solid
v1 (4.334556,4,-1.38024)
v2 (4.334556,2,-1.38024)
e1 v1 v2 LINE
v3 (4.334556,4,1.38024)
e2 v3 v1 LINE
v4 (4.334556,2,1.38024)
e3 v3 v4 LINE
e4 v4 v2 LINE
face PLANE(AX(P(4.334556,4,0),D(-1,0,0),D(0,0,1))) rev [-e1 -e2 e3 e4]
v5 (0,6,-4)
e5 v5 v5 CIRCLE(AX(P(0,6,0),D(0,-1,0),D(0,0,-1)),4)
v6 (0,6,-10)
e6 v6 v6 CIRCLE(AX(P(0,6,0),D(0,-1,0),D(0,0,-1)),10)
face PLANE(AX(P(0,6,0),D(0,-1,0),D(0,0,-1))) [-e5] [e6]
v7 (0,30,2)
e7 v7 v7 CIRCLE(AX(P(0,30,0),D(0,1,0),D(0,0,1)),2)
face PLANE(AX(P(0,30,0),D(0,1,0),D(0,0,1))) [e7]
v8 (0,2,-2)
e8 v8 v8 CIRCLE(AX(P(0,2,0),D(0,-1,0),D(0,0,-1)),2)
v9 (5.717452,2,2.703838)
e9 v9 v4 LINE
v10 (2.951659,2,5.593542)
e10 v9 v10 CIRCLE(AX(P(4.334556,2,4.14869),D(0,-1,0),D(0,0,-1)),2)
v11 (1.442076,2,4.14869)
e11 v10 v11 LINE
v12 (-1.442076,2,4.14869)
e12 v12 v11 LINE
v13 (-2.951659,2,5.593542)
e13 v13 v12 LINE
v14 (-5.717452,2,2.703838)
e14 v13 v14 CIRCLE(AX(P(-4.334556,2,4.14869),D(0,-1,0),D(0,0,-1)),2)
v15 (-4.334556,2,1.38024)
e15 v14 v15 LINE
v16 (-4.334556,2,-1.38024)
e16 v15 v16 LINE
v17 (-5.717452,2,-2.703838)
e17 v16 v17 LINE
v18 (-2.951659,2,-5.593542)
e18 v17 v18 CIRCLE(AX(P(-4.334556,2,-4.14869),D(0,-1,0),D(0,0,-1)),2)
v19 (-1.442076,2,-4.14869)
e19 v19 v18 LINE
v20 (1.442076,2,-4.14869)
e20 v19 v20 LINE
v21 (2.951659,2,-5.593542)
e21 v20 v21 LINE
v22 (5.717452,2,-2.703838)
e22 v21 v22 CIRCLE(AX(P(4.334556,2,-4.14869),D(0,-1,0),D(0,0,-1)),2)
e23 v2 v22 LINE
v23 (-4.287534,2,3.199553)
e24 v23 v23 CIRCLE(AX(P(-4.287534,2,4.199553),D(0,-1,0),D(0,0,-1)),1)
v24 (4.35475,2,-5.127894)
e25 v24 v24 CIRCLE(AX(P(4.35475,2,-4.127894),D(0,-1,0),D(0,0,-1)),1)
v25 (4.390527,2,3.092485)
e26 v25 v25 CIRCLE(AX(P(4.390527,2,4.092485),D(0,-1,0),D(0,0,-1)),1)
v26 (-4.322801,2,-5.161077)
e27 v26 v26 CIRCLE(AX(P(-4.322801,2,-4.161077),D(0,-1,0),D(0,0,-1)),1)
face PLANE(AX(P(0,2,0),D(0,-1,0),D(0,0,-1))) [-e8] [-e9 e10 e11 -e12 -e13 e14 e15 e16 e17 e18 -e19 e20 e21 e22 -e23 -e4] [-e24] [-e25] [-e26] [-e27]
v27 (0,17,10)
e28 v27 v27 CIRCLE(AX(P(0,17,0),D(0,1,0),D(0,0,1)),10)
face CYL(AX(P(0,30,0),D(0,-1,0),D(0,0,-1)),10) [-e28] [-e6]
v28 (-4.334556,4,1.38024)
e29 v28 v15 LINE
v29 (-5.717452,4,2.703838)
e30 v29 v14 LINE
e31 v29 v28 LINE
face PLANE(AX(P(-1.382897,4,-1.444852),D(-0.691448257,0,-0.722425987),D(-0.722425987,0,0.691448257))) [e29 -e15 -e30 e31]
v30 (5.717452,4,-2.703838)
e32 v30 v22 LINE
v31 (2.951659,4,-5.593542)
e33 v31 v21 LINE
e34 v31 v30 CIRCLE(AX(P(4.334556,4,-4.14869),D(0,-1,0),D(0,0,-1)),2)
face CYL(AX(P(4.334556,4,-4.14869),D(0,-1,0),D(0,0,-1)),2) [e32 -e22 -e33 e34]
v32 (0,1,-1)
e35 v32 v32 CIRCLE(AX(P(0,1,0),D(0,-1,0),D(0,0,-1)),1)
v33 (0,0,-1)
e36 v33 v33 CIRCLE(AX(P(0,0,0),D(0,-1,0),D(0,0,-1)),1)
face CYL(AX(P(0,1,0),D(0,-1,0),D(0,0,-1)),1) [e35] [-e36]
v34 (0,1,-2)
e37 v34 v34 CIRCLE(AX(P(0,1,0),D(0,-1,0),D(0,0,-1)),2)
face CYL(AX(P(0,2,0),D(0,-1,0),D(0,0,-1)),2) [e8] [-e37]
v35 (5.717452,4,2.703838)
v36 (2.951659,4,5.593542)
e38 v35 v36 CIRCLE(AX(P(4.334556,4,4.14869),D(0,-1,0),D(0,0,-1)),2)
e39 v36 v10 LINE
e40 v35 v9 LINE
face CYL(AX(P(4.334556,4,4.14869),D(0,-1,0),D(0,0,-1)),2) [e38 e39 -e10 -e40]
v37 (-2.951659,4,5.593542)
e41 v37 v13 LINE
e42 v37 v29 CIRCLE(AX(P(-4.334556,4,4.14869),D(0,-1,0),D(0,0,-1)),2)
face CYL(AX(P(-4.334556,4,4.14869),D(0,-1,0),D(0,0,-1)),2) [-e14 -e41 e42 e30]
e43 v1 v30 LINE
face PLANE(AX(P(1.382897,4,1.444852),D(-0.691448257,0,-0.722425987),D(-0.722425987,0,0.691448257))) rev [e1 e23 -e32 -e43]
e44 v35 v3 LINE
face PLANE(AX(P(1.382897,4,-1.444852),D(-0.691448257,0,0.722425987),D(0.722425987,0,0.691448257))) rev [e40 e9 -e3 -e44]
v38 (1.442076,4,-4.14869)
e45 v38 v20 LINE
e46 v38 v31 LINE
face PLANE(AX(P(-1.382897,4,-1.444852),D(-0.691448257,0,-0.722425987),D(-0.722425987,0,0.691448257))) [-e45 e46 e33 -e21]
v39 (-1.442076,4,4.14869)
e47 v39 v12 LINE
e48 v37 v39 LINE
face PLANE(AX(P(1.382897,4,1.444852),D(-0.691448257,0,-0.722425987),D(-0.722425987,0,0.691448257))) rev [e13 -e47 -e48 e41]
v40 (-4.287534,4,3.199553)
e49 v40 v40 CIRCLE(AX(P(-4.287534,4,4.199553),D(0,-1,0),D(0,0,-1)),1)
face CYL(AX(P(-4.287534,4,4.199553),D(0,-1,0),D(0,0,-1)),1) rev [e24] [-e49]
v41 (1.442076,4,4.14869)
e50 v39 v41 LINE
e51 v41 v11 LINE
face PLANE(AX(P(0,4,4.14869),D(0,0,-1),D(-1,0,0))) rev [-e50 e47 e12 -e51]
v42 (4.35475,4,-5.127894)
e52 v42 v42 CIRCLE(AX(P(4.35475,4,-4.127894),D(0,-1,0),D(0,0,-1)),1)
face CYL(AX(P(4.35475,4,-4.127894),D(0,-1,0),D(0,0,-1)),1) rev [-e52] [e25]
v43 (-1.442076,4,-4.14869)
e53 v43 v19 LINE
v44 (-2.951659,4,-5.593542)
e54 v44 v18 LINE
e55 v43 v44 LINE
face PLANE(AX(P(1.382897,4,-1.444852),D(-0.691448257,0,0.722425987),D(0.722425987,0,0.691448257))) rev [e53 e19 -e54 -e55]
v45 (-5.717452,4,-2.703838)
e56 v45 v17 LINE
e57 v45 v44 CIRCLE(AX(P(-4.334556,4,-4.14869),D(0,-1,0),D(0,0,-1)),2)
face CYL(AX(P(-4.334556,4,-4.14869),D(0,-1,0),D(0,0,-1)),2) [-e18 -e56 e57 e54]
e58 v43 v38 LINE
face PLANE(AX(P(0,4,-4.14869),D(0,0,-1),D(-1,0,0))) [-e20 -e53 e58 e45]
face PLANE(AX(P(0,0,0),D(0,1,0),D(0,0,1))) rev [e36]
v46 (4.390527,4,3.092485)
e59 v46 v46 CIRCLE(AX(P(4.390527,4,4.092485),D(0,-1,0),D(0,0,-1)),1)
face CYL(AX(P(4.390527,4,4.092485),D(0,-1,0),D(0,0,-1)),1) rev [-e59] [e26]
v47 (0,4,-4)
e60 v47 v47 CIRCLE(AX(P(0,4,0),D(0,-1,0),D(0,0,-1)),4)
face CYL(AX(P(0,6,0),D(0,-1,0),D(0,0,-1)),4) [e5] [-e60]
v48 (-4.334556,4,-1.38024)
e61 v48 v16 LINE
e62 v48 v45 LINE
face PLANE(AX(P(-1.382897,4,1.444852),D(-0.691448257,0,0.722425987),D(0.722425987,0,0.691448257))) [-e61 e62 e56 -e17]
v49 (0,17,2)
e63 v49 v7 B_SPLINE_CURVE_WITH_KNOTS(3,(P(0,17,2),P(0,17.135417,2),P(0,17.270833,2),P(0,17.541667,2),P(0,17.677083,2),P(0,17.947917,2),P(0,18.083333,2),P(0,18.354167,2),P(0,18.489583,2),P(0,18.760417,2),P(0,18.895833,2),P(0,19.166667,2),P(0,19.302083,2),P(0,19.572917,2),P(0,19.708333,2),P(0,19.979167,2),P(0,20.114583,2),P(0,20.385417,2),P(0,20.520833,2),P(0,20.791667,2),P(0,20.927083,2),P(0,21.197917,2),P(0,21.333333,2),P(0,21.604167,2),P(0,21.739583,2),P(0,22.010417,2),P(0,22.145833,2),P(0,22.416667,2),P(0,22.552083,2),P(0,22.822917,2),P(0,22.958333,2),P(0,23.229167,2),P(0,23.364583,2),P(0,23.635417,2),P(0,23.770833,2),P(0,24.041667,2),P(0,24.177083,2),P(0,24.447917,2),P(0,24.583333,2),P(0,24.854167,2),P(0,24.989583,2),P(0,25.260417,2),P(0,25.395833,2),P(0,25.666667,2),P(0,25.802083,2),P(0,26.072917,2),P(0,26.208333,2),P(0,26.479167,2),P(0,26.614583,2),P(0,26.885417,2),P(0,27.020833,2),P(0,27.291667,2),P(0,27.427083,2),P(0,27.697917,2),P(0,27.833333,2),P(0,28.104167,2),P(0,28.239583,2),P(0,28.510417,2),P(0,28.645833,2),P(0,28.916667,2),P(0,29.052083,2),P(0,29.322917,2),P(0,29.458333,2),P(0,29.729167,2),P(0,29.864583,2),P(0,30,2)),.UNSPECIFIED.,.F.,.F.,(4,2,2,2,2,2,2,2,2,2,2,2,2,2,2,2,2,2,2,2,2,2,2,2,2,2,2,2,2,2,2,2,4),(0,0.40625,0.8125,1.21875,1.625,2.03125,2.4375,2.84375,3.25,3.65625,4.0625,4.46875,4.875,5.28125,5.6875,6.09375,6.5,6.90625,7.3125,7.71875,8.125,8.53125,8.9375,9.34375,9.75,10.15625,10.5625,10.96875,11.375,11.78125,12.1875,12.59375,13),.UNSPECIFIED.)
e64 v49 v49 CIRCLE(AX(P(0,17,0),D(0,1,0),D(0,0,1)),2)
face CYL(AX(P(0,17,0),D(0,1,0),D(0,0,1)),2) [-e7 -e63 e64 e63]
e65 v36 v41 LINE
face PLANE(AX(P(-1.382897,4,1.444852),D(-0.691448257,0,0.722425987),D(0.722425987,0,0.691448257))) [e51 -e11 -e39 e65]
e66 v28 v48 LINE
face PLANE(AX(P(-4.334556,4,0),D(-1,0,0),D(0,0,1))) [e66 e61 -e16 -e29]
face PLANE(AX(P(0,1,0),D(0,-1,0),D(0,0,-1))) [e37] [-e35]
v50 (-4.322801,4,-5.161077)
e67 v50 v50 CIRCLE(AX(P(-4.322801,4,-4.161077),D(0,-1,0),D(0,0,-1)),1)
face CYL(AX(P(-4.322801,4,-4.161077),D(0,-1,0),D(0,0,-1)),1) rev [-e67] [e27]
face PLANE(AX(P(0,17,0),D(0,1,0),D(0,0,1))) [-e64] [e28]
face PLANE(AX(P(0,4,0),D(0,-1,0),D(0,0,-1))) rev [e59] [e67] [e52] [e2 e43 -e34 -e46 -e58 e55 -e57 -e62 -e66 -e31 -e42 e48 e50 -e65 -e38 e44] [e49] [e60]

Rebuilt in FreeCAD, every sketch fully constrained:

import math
import FreeCAD as App
import Part
import Sketcher

doc = App.newDocument("Part")
params = doc.addObject("Spreadsheet::Sheet", "Params")
for row, (alias, value) in enumerate([
    ("sketch1_diameter", "20 mm"),
    ("pad1_length", "30 mm"),
    ("sketch2_diameter", "20 mm"),
    ("sketch2_diameter2", "8 mm"),
    ("pocket1_length", "13 mm"),
    ("sketch3_diameter", "8 mm"),
    ("sketch3_diameter2", "4 mm"),
    ("pocket2_length", "13 mm"),
    ("sketch4_diameter", "20 mm"),
    ("sketch4_diameter2", "2 mm"),
    ("pocket3_length", "1 mm"),
    ("sketch5_diameter", "20 mm"),
    ("sketch5_diameter2", "4 mm"),
    ("pocket4_length", "2 mm"),
    ("sketch6_diameter", "20 mm"),
    ("sketch6_radius", "2 mm"),
    ("pocket5_length", "4 mm"),
    ("sketch7_diameter", "20 mm"),
    ("sketch7_diameter2", "8 mm"),
    ("pocket6_length", "2 mm"),
    ("sketch8_diameter", "2 mm"),
    ("pocket7_length", "2 mm"),
], start=1):
    params.set(f"A{row}", alias)
    params.set(f"B{row}", "=" + value)
    params.setAlias(f"B{row}", alias)

body = doc.addObject("PartDesign::Body", "Body")

# Sketch on XZ plane
sketch1 = body.newObject("Sketcher::SketchObject", "Sketch")
sketch1.AttachmentSupport = (doc.getObject("XZ_Plane"), [""])
sketch1.MapMode = "FlatFace"
sketch1.addGeometry(Part.Circle(App.Vector(0, 0, 0), App.Vector(0, 0, 1), 10), False)
sketch1.addConstraint([
    Sketcher.Constraint("Coincident", 0, 3, -1, 1),
    Sketcher.Constraint("Diameter", 0, 20.0),
])
sketch1.setExpression("Constraints[1]", "Params.sketch1_diameter")
pad1 = body.newObject("PartDesign::Pad", "Pad")
pad1.Profile = sketch1
pad1.setExpression("Length", "Params.pad1_length")
pad1.Reversed = True

# Sketch on XZ plane
sketch2 = body.newObject("Sketcher::SketchObject", "Sketch001")
sketch2.AttachmentSupport = (doc.getObject("XZ_Plane"), [""])
sketch2.MapMode = "FlatFace"
sketch2.AttachmentOffset = App.Placement(App.Vector(0, 0, -17), App.Rotation())
sketch2.addGeometry([
    Part.Circle(App.Vector(0, 0, 0), App.Vector(0, 0, 1), 10),
    Part.Circle(App.Vector(0, 0, 0), App.Vector(0, 0, 1), 4),
], False)
sketch2.addConstraint([
    Sketcher.Constraint("Coincident", 0, 3, -1, 1),
    Sketcher.Constraint("Coincident", 1, 3, -1, 1),
    Sketcher.Constraint("Diameter", 0, 20.0),
    Sketcher.Constraint("Diameter", 1, 8.0),
])
sketch2.setExpression("Constraints[2]", "Params.sketch2_diameter")
sketch2.setExpression("Constraints[3]", "Params.sketch2_diameter2")
pocket1 = body.newObject("PartDesign::Pocket", "Pocket")
pocket1.Profile = sketch2
pocket1.setExpression("Length", "Params.pocket1_length")

# Sketch on XZ plane
sketch3 = body.newObject("Sketcher::SketchObject", "Sketch002")
sketch3.AttachmentSupport = (doc.getObject("XZ_Plane"), [""])
sketch3.MapMode = "FlatFace"
sketch3.AttachmentOffset = App.Placement(App.Vector(0, 0, -17), App.Rotation())
sketch3.addGeometry([
    Part.Circle(App.Vector(0, 0, 0), App.Vector(0, 0, 1), 4),
    Part.Circle(App.Vector(0, 0, 0), App.Vector(0, 0, 1), 2),
], False)
sketch3.addConstraint([
    Sketcher.Constraint("Coincident", 0, 3, -1, 1),
    Sketcher.Constraint("Coincident", 1, 3, -1, 1),
    Sketcher.Constraint("Diameter", 0, 8.0),
    Sketcher.Constraint("Diameter", 1, 4.0),
])
sketch3.setExpression("Constraints[2]", "Params.sketch3_diameter")
sketch3.setExpression("Constraints[3]", "Params.sketch3_diameter2")
pocket2 = body.newObject("PartDesign::Pocket", "Pocket001")
pocket2.Profile = sketch3
pocket2.setExpression("Length", "Params.pocket2_length")

# Sketch on XZ plane
sketch4 = body.newObject("Sketcher::SketchObject", "Sketch003")
sketch4.AttachmentSupport = (doc.getObject("XZ_Plane"), [""])
sketch4.MapMode = "FlatFace"
sketch4.addGeometry([
    Part.Circle(App.Vector(0, 0, 0), App.Vector(0, 0, 1), 10),
    Part.Circle(App.Vector(0, 0, 0), App.Vector(0, 0, 1), 1),
], False)
sketch4.addConstraint([
    Sketcher.Constraint("Coincident", 0, 3, -1, 1),
    Sketcher.Constraint("Coincident", 1, 3, -1, 1),
    Sketcher.Constraint("Diameter", 0, 20.0),
    Sketcher.Constraint("Diameter", 1, 2.0),
])
sketch4.setExpression("Constraints[2]", "Params.sketch4_diameter")
sketch4.setExpression("Constraints[3]", "Params.sketch4_diameter2")
pocket3 = body.newObject("PartDesign::Pocket", "Pocket002")
pocket3.Profile = sketch4
pocket3.setExpression("Length", "Params.pocket3_length")

# Sketch on XZ plane
sketch5 = body.newObject("Sketcher::SketchObject", "Sketch004")
sketch5.AttachmentSupport = (doc.getObject("XZ_Plane"), [""])
sketch5.MapMode = "FlatFace"
sketch5.addGeometry([
    Part.Circle(App.Vector(0, 0, 0), App.Vector(0, 0, 1), 10),
    Part.Circle(App.Vector(0, 0, 0), App.Vector(0, 0, 1), 2),
], False)
sketch5.addConstraint([
    Sketcher.Constraint("Coincident", 0, 3, -1, 1),
    Sketcher.Constraint("Coincident", 1, 3, -1, 1),
    Sketcher.Constraint("Diameter", 0, 20.0),
    Sketcher.Constraint("Diameter", 1, 4.0),
])
sketch5.setExpression("Constraints[2]", "Params.sketch5_diameter")
sketch5.setExpression("Constraints[3]", "Params.sketch5_diameter2")
pocket4 = body.newObject("PartDesign::Pocket", "Pocket003")
pocket4.Profile = sketch5
pocket4.setExpression("Length", "Params.pocket4_length")

# Sketch on XZ plane
sketch6 = body.newObject("Sketcher::SketchObject", "Sketch005")
sketch6.AttachmentSupport = (doc.getObject("XZ_Plane"), [""])
sketch6.MapMode = "FlatFace"
sketch6.addGeometry([
    Part.Circle(App.Vector(0, 0, 0), App.Vector(0, 0, 1), 10),  # 0
    Part.LineSegment(App.Vector(-2.951659, 5.593542, 0), App.Vector(-1.442076, 4.14869, 0)),  # 1
    Part.LineSegment(App.Vector(-1.442076, 4.14869, 0), App.Vector(1.442076, 4.14869, 0)),  # 2
    Part.LineSegment(App.Vector(1.442076, 4.14869, 0), App.Vector(2.951659, 5.593542, 0)),  # 3
    Part.ArcOfCircle(Part.Circle(App.Vector(4.334556, 4.14869, 0), App.Vector(0, 0, 1), 2), math.radians(-46.255139), math.radians(133.744861)),  # 4
    Part.LineSegment(App.Vector(5.717452, 2.703838, 0), App.Vector(4.334556, 1.38024, 0)),  # 5
    Part.LineSegment(App.Vector(4.334556, 1.38024, 0), App.Vector(4.334556, -1.38024, 0)),  # 6
    Part.LineSegment(App.Vector(4.334556, -1.38024, 0), App.Vector(5.717452, -2.703838, 0)),  # 7
    Part.ArcOfCircle(Part.Circle(App.Vector(4.334556, -4.14869, 0), App.Vector(0, 0, 1), 2), math.radians(-133.744861), math.radians(46.255139)),  # 8
    Part.LineSegment(App.Vector(2.951659, -5.593542, 0), App.Vector(1.442076, -4.14869, 0)),  # 9
    Part.LineSegment(App.Vector(1.442076, -4.14869, 0), App.Vector(-1.442076, -4.14869, 0)),  # 10
    Part.LineSegment(App.Vector(-1.442076, -4.14869, 0), App.Vector(-2.951659, -5.593542, 0)),  # 11
    Part.ArcOfCircle(Part.Circle(App.Vector(-4.334556, -4.14869, 0), App.Vector(0, 0, 1), 2), math.radians(133.744861), math.radians(313.744861)),  # 12
    Part.LineSegment(App.Vector(-5.717452, -2.703838, 0), App.Vector(-4.334556, -1.38024, 0)),  # 13
    Part.LineSegment(App.Vector(-4.334556, -1.38024, 0), App.Vector(-4.334556, 1.38024, 0)),  # 14
    Part.LineSegment(App.Vector(-4.334556, 1.38024, 0), App.Vector(-5.717452, 2.703838, 0)),  # 15
    Part.ArcOfCircle(Part.Circle(App.Vector(-4.334556, 4.14869, 0), App.Vector(0, 0, 1), 2), math.radians(46.255139), math.radians(226.255139)),  # 16
], False)
sketch6.addConstraint([
    Sketcher.Constraint("Coincident", 1, 2, 2, 1),
    Sketcher.Constraint("Coincident", 2, 2, 3, 1),
    Sketcher.Constraint("Tangent", 3, 2, 4, 2),
    Sketcher.Constraint("Tangent", 4, 1, 5, 1),
    Sketcher.Constraint("Coincident", 5, 2, 6, 1),
    Sketcher.Constraint("Coincident", 6, 2, 7, 1),
    Sketcher.Constraint("Tangent", 7, 2, 8, 2),
    Sketcher.Constraint("Tangent", 8, 1, 9, 1),
    Sketcher.Constraint("Coincident", 9, 2, 10, 1),
    Sketcher.Constraint("Coincident", 10, 2, 11, 1),
    Sketcher.Constraint("Tangent", 11, 2, 12, 2),
    Sketcher.Constraint("Tangent", 12, 1, 13, 1),
    Sketcher.Constraint("Coincident", 13, 2, 14, 1),
    Sketcher.Constraint("Coincident", 14, 2, 15, 1),
    Sketcher.Constraint("Tangent", 15, 2, 16, 2),
    Sketcher.Constraint("Tangent", 16, 1, 1, 1),
    Sketcher.Constraint("Horizontal", 2),
    Sketcher.Constraint("Vertical", 6),
    Sketcher.Constraint("Horizontal", 10),
    Sketcher.Constraint("Vertical", 14),
    Sketcher.Constraint("Coincident", 0, 3, -1, 1),
    Sketcher.Constraint("Equal", 4, 8),
    Sketcher.Constraint("Equal", 8, 12),
    Sketcher.Constraint("Equal", 12, 16),
    Sketcher.Constraint("Symmetric", 4, 3, 12, 3, -1, 1),
    Sketcher.Constraint("Symmetric", 8, 3, 16, 3, -1, 1),
    Sketcher.Constraint("Symmetric", 1, 2, 9, 2, -1, 1),
    Sketcher.Constraint("Symmetric", 5, 2, 13, 2, -1, 1),
    Sketcher.Constraint("Symmetric", 8, 3, 12, 3, -2),
    Sketcher.Constraint("Parallel", 3, 5),
    Sketcher.Constraint("Parallel", 1, 7),
    Sketcher.Constraint("Parallel", 5, 11),
    Sketcher.Constraint("Parallel", 9, 15),
    Sketcher.Constraint("Horizontal", 16, 3, 1, 2),
    Sketcher.Constraint("Horizontal", 8, 1, 11, 2),
    Sketcher.Constraint("Vertical", 8, 3, 5, 2),
    Sketcher.Constraint("Diameter", 0, 20.0),
    Sketcher.Constraint("Radius", 4, 2.0),
    Sketcher.Constraint("DistanceY", 6, 2, 6, 1, 2.76048),
    Sketcher.Constraint("DistanceY", 5, 2, 3, 2, 4.213302),
    Sketcher.Constraint("DistanceX", 2, 1, 2, 2, 2.884153),
])
sketch6.setExpression("Constraints[36]", "Params.sketch6_diameter")
sketch6.setExpression("Constraints[37]", "Params.sketch6_radius")
pocket5 = body.newObject("PartDesign::Pocket", "Pocket004")
pocket5.Profile = sketch6
pocket5.setExpression("Length", "Params.pocket5_length")

# Sketch on XZ plane
sketch7 = body.newObject("Sketcher::SketchObject", "Sketch006")
sketch7.AttachmentSupport = (doc.getObject("XZ_Plane"), [""])
sketch7.MapMode = "FlatFace"
sketch7.AttachmentOffset = App.Placement(App.Vector(0, 0, -4), App.Rotation())
sketch7.addGeometry([
    Part.Circle(App.Vector(0, 0, 0), App.Vector(0, 0, 1), 10),
    Part.Circle(App.Vector(0, 0, 0), App.Vector(0, 0, 1), 4),
], False)
sketch7.addConstraint([
    Sketcher.Constraint("Coincident", 0, 3, -1, 1),
    Sketcher.Constraint("Coincident", 1, 3, -1, 1),
    Sketcher.Constraint("Diameter", 0, 20.0),
    Sketcher.Constraint("Diameter", 1, 8.0),
])
sketch7.setExpression("Constraints[2]", "Params.sketch7_diameter")
sketch7.setExpression("Constraints[3]", "Params.sketch7_diameter2")
pocket6 = body.newObject("PartDesign::Pocket", "Pocket005")
pocket6.Profile = sketch7
pocket6.setExpression("Length", "Params.pocket6_length")

# Sketch on XZ plane
sketch8 = body.newObject("Sketcher::SketchObject", "Sketch007")
sketch8.AttachmentSupport = (doc.getObject("XZ_Plane"), [""])
sketch8.MapMode = "FlatFace"
sketch8.AttachmentOffset = App.Placement(App.Vector(0, 0, -2), App.Rotation())
sketch8.addGeometry([
    Part.Circle(App.Vector(-4.287534, 4.199553, 0), App.Vector(0, 0, 1), 1),
    Part.Circle(App.Vector(4.390527, 4.092485, 0), App.Vector(0, 0, 1), 1),
    Part.Circle(App.Vector(4.35475, -4.127894, 0), App.Vector(0, 0, 1), 1),
    Part.Circle(App.Vector(-4.322801, -4.161077, 0), App.Vector(0, 0, 1), 1),
], False)
sketch8.addConstraint([
    Sketcher.Constraint("Equal", 0, 1),
    Sketcher.Constraint("Equal", 1, 2),
    Sketcher.Constraint("Equal", 2, 3),
    Sketcher.Constraint("Diameter", 0, 2.0),
    Sketcher.Constraint("DistanceX", 3, 3, -1, 1, 4.322801),
    Sketcher.Constraint("DistanceX", -1, 1, 2, 3, 4.35475),
    Sketcher.Constraint("DistanceX", 0, 3, 1, 3, 8.678061),
    Sketcher.Constraint("DistanceY", 2, 3, 1, 3, 8.22038),
    Sketcher.Constraint("DistanceY", 3, 3, 0, 3, 8.36063),
    Sketcher.Constraint("DistanceX", 0, 3, -1, 1, 4.287534),
    Sketcher.Constraint("DistanceY", -1, 1, 0, 3, 4.199553),
    Sketcher.Constraint("DistanceY", -1, 1, 1, 3, 4.092485),
])
sketch8.setExpression("Constraints[3]", "Params.sketch8_diameter")
pocket7 = body.newObject("PartDesign::Pocket", "Pocket006")
pocket7.Profile = sketch8
pocket7.setExpression("Length", "Params.pocket7_length")

doc.recompute()
